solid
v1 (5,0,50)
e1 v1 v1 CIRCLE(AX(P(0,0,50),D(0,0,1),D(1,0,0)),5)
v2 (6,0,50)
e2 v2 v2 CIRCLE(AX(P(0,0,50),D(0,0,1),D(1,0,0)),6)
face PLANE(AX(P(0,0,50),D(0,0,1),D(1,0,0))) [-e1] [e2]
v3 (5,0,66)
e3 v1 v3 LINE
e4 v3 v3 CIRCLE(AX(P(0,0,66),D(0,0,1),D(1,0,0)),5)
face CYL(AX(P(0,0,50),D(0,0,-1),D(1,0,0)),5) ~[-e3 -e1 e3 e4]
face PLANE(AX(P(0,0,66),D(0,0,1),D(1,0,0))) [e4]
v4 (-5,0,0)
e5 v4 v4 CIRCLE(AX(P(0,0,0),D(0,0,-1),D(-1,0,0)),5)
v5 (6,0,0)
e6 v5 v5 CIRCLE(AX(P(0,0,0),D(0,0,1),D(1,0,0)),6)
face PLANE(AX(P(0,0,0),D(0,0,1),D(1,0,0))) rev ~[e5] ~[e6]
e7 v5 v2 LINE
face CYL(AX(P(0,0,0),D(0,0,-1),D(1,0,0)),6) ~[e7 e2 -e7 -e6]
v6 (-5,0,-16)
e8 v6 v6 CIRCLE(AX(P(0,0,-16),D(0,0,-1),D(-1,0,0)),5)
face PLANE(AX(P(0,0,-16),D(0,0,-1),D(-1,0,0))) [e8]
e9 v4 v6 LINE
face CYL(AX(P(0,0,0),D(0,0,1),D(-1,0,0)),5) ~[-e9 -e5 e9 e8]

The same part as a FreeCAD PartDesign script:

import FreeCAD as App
import Part
import Sketcher
from FreeCAD import Vector
Q = App.Units.Quantity

doc = App.newDocument("Part")
body = doc.addObject("PartDesign::Body", "Body")

# Sketch on XY plane
sketch1 = body.newObject("Sketcher::SketchObject", "Sketch")
sketch1.AttachmentSupport = (doc.getObject("XY_Plane"), [""])
sketch1.MapMode = "FlatFace"
sketch1.addGeometry(Part.Circle(Vector(0, 0, 0), Vector(0, 0, 1), 6), False)
sketch1.addConstraint([
    Sketcher.Constraint("Coincident", 0, 3, -1, 1),
    Sketcher.Constraint("Diameter", 0, Q("12 mm")),
])
pad1 = body.newObject("PartDesign::Pad", "Pad")
pad1.Profile = sketch1
pad1.Length = 50

# Sketch on XY plane
sketch2 = body.newObject("Sketcher::SketchObject", "Sketch001")
sketch2.AttachmentSupport = (doc.getObject("XY_Plane"), [""])
sketch2.MapMode = "FlatFace"
sketch2.AttachmentOffset = App.Placement(Vector(0, 0, 50), App.Rotation())
sketch2.addGeometry(Part.Circle(Vector(0, 0, 0), Vector(0, 0, 1), 5), False)
sketch2.addConstraint([
    Sketcher.Constraint("Coincident", 0, 3, -1, 1),
    Sketcher.Constraint("Diameter", 0, Q("10 mm")),
])
pad2 = body.newObject("PartDesign::Pad", "Pad001")
pad2.Profile = sketch2
pad2.Length = 16

# Sketch on XY plane
sketch3 = body.newObject("Sketcher::SketchObject", "Sketch002")
sketch3.AttachmentSupport = (doc.getObject("XY_Plane"), [""])
sketch3.MapMode = "FlatFace"
sketch3.addGeometry(Part.Circle(Vector(0, 0, 0), Vector(0, 0, 1), 5), False)
sketch3.addConstraint([
    Sketcher.Constraint("Coincident", 0, 3, -1, 1),
    Sketcher.Constraint("Diameter", 0, Q("10 mm")),
])
pad3 = body.newObject("PartDesign::Pad", "Pad002")
pad3.Profile = sketch3
pad3.Length = 16
pad3.Reversed = True

doc.recompute()
